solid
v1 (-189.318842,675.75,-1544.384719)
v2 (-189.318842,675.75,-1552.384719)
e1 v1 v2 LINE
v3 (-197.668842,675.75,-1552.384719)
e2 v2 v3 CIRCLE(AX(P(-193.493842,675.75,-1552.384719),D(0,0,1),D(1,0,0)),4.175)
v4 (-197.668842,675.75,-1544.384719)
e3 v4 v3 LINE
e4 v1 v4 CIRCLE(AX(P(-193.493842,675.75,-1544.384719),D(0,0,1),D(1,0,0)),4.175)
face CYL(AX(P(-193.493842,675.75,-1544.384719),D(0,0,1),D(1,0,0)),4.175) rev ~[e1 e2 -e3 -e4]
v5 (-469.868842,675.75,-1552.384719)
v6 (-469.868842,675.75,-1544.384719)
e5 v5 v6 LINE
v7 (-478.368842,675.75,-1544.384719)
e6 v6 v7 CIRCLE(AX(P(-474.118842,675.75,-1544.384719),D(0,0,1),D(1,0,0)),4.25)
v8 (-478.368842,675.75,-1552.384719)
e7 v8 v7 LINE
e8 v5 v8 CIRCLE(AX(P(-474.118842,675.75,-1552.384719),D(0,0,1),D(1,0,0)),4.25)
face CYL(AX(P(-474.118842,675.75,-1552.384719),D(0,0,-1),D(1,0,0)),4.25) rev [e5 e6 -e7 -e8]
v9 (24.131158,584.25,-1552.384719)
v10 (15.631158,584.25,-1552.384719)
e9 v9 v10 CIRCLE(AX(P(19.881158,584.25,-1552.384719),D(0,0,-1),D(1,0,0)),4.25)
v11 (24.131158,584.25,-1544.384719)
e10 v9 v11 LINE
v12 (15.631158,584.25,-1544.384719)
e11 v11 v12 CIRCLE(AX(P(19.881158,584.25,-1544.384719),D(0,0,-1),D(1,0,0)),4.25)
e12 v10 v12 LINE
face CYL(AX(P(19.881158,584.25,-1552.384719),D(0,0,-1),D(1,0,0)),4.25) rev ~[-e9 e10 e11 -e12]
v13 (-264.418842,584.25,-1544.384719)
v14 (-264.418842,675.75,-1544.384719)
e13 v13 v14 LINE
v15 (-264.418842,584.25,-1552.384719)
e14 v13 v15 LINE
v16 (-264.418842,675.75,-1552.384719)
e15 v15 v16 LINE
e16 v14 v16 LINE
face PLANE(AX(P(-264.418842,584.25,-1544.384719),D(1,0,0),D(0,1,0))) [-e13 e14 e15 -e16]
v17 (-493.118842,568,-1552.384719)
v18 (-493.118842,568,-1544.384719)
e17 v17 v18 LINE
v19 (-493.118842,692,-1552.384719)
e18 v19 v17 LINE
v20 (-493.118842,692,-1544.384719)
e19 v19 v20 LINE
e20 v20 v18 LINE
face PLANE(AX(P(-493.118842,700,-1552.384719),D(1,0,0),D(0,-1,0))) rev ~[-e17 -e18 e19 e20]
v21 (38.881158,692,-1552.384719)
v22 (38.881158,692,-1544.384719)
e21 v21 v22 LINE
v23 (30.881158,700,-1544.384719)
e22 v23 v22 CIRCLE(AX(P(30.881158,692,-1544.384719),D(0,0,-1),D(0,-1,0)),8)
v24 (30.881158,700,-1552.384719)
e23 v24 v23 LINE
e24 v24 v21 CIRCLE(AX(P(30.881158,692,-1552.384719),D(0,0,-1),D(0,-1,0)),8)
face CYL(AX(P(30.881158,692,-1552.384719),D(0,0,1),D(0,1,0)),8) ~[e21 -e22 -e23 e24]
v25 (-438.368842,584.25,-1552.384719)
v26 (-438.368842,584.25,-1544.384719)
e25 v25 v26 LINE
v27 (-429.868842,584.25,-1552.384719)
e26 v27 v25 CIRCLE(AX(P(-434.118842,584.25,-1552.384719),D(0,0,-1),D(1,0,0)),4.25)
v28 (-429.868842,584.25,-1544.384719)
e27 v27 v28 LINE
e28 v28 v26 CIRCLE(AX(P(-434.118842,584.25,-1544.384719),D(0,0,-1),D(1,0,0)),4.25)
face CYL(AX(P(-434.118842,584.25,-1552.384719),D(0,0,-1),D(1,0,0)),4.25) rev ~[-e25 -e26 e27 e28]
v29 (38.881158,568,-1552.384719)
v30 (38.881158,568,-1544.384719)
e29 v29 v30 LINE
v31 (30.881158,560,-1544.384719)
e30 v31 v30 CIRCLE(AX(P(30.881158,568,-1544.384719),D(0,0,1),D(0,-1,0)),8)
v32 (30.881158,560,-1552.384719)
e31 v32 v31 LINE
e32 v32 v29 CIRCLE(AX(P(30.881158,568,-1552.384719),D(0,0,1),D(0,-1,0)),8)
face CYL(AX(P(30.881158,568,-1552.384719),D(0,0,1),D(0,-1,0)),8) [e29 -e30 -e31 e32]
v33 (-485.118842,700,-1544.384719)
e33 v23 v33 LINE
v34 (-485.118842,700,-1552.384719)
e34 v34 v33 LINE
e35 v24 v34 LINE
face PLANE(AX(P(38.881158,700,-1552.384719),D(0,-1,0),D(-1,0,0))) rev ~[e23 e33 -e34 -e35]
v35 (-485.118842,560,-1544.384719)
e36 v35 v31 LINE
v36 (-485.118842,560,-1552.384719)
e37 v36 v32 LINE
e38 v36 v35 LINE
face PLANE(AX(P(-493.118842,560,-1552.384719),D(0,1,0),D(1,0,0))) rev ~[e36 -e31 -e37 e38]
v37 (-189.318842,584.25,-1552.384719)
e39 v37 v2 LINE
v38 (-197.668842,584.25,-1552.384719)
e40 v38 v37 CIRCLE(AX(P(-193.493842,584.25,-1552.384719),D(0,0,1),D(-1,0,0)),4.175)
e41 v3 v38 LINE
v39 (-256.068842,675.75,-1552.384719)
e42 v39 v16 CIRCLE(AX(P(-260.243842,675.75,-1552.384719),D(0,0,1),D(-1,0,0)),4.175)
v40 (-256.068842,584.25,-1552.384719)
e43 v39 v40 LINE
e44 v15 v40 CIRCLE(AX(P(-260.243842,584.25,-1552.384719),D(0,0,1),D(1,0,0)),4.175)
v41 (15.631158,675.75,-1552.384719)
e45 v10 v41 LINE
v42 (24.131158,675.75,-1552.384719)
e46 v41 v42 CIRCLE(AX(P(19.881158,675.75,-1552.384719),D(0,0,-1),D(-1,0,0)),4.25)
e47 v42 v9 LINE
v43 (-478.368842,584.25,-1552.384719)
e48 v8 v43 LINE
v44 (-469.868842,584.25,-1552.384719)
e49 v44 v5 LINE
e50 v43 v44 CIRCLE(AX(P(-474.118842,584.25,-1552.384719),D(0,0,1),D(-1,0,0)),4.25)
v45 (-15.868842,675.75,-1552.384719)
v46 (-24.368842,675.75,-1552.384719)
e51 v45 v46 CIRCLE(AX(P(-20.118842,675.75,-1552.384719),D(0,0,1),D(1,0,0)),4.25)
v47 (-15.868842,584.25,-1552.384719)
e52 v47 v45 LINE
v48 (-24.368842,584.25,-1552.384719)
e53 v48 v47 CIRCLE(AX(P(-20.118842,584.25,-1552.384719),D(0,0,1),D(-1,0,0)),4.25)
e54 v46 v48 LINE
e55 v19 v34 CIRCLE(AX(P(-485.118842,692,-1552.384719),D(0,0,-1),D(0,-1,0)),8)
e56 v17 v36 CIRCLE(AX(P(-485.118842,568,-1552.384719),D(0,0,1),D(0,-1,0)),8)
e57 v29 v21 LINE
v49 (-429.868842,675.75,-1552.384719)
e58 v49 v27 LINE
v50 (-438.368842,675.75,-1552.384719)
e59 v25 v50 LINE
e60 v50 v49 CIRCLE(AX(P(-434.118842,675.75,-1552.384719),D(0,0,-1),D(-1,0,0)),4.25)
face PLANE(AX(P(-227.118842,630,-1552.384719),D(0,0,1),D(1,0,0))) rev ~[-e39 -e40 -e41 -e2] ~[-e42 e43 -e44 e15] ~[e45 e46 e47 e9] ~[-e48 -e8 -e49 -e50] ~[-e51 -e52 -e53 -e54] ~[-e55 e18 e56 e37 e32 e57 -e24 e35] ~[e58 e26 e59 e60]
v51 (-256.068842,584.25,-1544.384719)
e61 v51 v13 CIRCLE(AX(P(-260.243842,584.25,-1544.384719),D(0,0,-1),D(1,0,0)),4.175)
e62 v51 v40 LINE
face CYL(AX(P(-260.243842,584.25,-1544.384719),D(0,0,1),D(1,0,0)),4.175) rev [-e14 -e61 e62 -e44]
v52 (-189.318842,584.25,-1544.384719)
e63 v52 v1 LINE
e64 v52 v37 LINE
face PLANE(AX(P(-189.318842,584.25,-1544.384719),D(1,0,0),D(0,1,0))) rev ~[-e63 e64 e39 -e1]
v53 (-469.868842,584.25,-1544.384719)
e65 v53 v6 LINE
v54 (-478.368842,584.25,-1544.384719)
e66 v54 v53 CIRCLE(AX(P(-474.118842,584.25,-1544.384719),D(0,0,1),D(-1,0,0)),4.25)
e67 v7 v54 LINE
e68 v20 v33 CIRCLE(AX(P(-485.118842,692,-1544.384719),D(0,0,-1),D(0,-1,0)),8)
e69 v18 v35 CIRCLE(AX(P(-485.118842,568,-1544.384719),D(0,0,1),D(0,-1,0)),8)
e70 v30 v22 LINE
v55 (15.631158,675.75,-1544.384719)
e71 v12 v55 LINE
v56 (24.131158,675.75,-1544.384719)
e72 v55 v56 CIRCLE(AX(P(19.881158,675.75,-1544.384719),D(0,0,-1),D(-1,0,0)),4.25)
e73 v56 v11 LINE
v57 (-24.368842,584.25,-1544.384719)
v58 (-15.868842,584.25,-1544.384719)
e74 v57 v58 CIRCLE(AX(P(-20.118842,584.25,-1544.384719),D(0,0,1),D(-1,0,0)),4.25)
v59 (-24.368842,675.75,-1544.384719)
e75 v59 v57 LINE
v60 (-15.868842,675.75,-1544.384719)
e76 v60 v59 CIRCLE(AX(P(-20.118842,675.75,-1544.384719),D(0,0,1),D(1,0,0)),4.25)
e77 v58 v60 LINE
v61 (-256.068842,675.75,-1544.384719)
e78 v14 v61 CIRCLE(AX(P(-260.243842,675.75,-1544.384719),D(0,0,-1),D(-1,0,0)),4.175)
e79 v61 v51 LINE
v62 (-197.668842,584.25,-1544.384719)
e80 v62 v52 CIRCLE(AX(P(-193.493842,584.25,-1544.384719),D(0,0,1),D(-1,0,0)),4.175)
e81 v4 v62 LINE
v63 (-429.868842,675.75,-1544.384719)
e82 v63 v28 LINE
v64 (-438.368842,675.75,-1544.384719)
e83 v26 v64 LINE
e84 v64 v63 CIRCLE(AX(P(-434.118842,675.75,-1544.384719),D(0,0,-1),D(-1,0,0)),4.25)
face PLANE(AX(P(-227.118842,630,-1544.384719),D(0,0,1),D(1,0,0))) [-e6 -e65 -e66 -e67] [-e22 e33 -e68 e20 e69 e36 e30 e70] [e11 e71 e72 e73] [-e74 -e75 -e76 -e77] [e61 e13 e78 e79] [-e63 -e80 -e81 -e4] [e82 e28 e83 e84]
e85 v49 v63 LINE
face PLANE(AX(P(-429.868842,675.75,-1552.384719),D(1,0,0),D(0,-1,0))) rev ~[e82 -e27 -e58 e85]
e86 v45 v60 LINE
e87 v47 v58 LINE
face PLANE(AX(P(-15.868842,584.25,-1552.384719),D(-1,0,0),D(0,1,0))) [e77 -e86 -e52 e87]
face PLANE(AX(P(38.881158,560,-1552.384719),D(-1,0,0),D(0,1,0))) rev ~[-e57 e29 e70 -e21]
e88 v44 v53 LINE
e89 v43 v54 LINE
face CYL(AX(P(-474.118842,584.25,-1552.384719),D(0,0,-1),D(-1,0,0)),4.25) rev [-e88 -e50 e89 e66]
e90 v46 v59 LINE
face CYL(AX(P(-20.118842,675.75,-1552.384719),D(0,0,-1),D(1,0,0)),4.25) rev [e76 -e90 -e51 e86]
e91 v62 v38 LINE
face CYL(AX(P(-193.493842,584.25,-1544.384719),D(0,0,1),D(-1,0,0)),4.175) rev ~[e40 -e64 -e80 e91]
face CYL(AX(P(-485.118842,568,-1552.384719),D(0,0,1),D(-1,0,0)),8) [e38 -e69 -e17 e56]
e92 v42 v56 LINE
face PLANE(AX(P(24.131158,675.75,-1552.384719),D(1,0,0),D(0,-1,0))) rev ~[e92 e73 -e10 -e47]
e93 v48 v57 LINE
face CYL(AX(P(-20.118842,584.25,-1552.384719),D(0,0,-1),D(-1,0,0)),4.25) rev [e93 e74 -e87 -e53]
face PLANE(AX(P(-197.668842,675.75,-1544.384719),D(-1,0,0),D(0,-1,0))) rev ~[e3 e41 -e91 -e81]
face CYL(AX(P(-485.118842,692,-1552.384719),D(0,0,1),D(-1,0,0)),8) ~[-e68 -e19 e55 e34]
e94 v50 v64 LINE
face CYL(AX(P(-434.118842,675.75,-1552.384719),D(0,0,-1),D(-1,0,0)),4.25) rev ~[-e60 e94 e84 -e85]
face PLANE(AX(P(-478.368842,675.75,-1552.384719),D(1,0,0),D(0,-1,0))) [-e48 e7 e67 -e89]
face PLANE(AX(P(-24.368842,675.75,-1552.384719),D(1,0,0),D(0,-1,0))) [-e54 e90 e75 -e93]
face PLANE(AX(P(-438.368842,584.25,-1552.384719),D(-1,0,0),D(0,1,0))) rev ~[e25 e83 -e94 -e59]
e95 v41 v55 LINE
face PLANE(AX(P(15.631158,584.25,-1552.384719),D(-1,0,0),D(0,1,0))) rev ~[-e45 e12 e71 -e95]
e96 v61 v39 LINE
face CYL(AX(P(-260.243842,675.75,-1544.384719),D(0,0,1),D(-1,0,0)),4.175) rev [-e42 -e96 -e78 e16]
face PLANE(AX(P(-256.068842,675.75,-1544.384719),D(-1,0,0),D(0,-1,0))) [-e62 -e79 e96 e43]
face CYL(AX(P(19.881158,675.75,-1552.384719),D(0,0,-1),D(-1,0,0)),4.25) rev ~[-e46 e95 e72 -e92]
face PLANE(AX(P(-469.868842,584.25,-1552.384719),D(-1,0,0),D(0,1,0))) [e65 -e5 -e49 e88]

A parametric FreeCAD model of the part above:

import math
import FreeCAD as App
import Part
import Sketcher

V = App.Vector


def edges_at(feature, points):
    """Names of the edges that pass closest to the given points."""
    edges = feature.Shape.Edges
    near = lambda p: min(range(len(edges)), key=lambda i: edges[i].distToShape(Part.Vertex(*p))[0])
    return sorted({f"Edge{near(p) + 1}" for p in points})

doc = App.newDocument("Part")
body = doc.addObject("PartDesign::Body", "Body")

# Sketch on XY plane
sketch1 = body.newObject("Sketcher::SketchObject", "Sketch")
sketch1.AttachmentSupport = (doc.getObject("XY_Plane"), [""])
sketch1.MapMode = "FlatFace"
sketch1.AttachmentOffset = App.Placement(V(0, 0, -1552.384719), App.Rotation())
sketch1.addGeometry(Part.LineSegment(V(-493.118842, 700, 0), V(-493.118842, 560, 0)), False)
sketch1.addGeometry(Part.LineSegment(V(-493.118842, 560, 0), V(38.881158, 560, 0)), False)
sketch1.addGeometry(Part.LineSegment(V(38.881158, 560, 0), V(38.881158, 700, 0)), False)
sketch1.addGeometry(Part.LineSegment(V(38.881158, 700, 0), V(-493.118842, 700, 0)), False)
sketch1.addGeometry(Part.LineSegment(V(-469.868842, 675.75, 0), V(-469.868842, 584.25, 0)), False)
sketch1.addGeometry(Part.ArcOfCircle(Part.Circle(V(-474.118842, 584.25, 0), V(0, 0, 1), 4.25), math.radians(180), math.radians(360)), False)
sketch1.addGeometry(Part.LineSegment(V(-478.368842, 584.25, 0), V(-478.368842, 675.75, 0)), False)
sketch1.addGeometry(Part.ArcOfCircle(Part.Circle(V(-474.118842, 675.75, 0), V(0, 0, 1), 4.25), math.radians(0), math.radians(180)), False)
sketch1.addGeometry(Part.ArcOfCircle(Part.Circle(V(-434.118842, 584.25, 0), V(0, 0, 1), 4.25), math.radians(180), math.radians(360)), False)
sketch1.addGeometry(Part.LineSegment(V(-438.368842, 584.25, 0), V(-438.368842, 675.75, 0)), False)
sketch1.addGeometry(Part.ArcOfCircle(Part.Circle(V(-434.118842, 675.75, 0), V(0, 0, 1), 4.25), math.radians(0), math.radians(180)), False)
sketch1.addGeometry(Part.LineSegment(V(-429.868842, 675.75, 0), V(-429.868842, 584.25, 0)), False)
sketch1.addGeometry(Part.LineSegment(V(-15.868842, 675.75, 0), V(-15.868842, 584.25, 0)), False)
sketch1.addGeometry(Part.ArcOfCircle(Part.Circle(V(-20.118842, 584.25, 0), V(0, 0, 1), 4.25), math.radians(180), math.radians(360)), False)
sketch1.addGeometry(Part.LineSegment(V(-24.368842, 584.25, 0), V(-24.368842, 675.75, 0)), False)
sketch1.addGeometry(Part.ArcOfCircle(Part.Circle(V(-20.118842, 675.75, 0), V(0, 0, 1), 4.25), math.radians(0), math.radians(180)), False)
sketch1.addGeometry(Part.ArcOfCircle(Part.Circle(V(19.881158, 584.25, 0), V(0, 0, 1), 4.25), math.radians(180), math.radians(360)), False)
sketch1.addGeometry(Part.LineSegment(V(15.631158, 584.25, 0), V(15.631158, 675.75, 0)), False)
sketch1.addGeometry(Part.ArcOfCircle(Part.Circle(V(19.881158, 675.75, 0), V(0, 0, 1), 4.25), math.radians(0), math.radians(180)), False)
sketch1.addGeometry(Part.LineSegment(V(24.131158, 675.75, 0), V(24.131158, 584.25, 0)), False)
sketch1.addConstraint(Sketcher.Constraint("Coincident", 0, 2, 1, 1))
sketch1.addConstraint(Sketcher.Constraint("Coincident", 1, 2, 2, 1))
sketch1.addConstraint(Sketcher.Constraint("Coincident", 2, 2, 3, 1))
sketch1.addConstraint(Sketcher.Constraint("Coincident", 3, 2, 0, 1))
sketch1.addConstraint(Sketcher.Constraint("Tangent", 4, 2, 5, 2))
sketch1.addConstraint(Sketcher.Constraint("Tangent", 5, 1, 6, 1))
sketch1.addConstraint(Sketcher.Constraint("Tangent", 6, 2, 7, 2))
sketch1.addConstraint(Sketcher.Constraint("Tangent", 7, 1, 4, 1))
sketch1.addConstraint(Sketcher.Constraint("Tangent", 8, 1, 9, 1))
sketch1.addConstraint(Sketcher.Constraint("Tangent", 9, 2, 10, 2))
sketch1.addConstraint(Sketcher.Constraint("Tangent", 10, 1, 11, 1))
sketch1.addConstraint(Sketcher.Constraint("Tangent", 11, 2, 8, 2))
sketch1.addConstraint(Sketcher.Constraint("Tangent", 12, 2, 13, 2))
sketch1.addConstraint(Sketcher.Constraint("Tangent", 13, 1, 14, 1))
sketch1.addConstraint(Sketcher.Constraint("Tangent", 14, 2, 15, 2))
sketch1.addConstraint(Sketcher.Constraint("Tangent", 15, 1, 12, 1))
sketch1.addConstraint(Sketcher.Constraint("Tangent", 16, 1, 17, 1))
sketch1.addConstraint(Sketcher.Constraint("Tangent", 17, 2, 18, 2))
sketch1.addConstraint(Sketcher.Constraint("Tangent", 18, 1, 19, 1))
sketch1.addConstraint(Sketcher.Constraint("Tangent", 19, 2, 16, 2))
sketch1.addConstraint(Sketcher.Constraint("Vertical", 0))
sketch1.addConstraint(Sketcher.Constraint("Horizontal", 1))
sketch1.addConstraint(Sketcher.Constraint("Vertical", 2))
sketch1.addConstraint(Sketcher.Constraint("Horizontal", 3))
sketch1.addConstraint(Sketcher.Constraint("Vertical", 4))
sketch1.addConstraint(Sketcher.Constraint("Vertical", 6))
sketch1.addConstraint(Sketcher.Constraint("Vertical", 9))
sketch1.addConstraint(Sketcher.Constraint("Vertical", 11))
sketch1.addConstraint(Sketcher.Constraint("Vertical", 12))
sketch1.addConstraint(Sketcher.Constraint("Vertical", 14))
sketch1.addConstraint(Sketcher.Constraint("Vertical", 17))
sketch1.addConstraint(Sketcher.Constraint("Vertical", 19))
sketch1.addConstraint(Sketcher.Constraint("Equal", 7, 8))
sketch1.addConstraint(Sketcher.Constraint("Equal", 10, 13))
sketch1.addConstraint(Sketcher.Constraint("Equal", 15, 16))
sketch1.addConstraint(Sketcher.Constraint("Horizontal", 5, 3, 8, 3))
sketch1.addConstraint(Sketcher.Constraint("Horizontal", 7, 3, 10, 3))
sketch1.addConstraint(Sketcher.Constraint("Horizontal", 8, 3, 13, 3))
sketch1.addConstraint(Sketcher.Constraint("Horizontal", 10, 3, 15, 3))
sketch1.addConstraint(Sketcher.Constraint("Horizontal", 13, 3, 16, 3))
sketch1.addConstraint(Sketcher.Constraint("Horizontal", 15, 3, 18, 3))
sketch1.addConstraint(Sketcher.Constraint("DistanceX", 1, 1, 1, 2, 532.0))
sketch1.addConstraint(Sketcher.Constraint("DistanceY", 0, 2, 0, 1, 140.0))
sketch1.addConstraint(Sketcher.Constraint("Radius", 5, 4.25))
sketch1.addConstraint(Sketcher.Constraint("DistanceY", 4, 2, 4, 1, 91.5))
sketch1.addConstraint(Sketcher.Constraint("DistanceY", -1, 1, 0, 2, 560.0))
sketch1.addConstraint(Sketcher.Constraint("DistanceX", 5, 3, 8, 3, 40.0))
sketch1.addConstraint(Sketcher.Constraint("DistanceX", 8, 3, 13, 3, 414.0))
sketch1.addConstraint(Sketcher.Constraint("DistanceX", 13, 3, 16, 3, 40.0))
sketch1.addConstraint(Sketcher.Constraint("DistanceX", 0, 2, 5, 3, 19.0))
sketch1.addConstraint(Sketcher.Constraint("DistanceY", -1, 1, 5, 3, 584.25))
sketch1.addConstraint(Sketcher.Constraint("DistanceX", 5, 3, -1, 1, 474.118842))
pad1 = body.newObject("PartDesign::Pad", "Pad")
pad1.Profile = sketch1
pad1.Length = 8
doc.recompute()

fillet = body.newObject("PartDesign::Fillet", "Fillet")
fillet.Base = (pad1, edges_at(pad1, [
    (-493.119, 560, -1548.385),
    (-493.119, 700, -1548.385),
    (38.881, 700, -1548.385),
    (38.881, 560, -1548.385),
]))
fillet.Radius = 8

# Sketch on XY plane
sketch2 = body.newObject("Sketcher::SketchObject", "Sketch001")
sketch2.AttachmentSupport = (doc.getObject("XY_Plane"), [""])
sketch2.MapMode = "FlatFace"
sketch2.AttachmentOffset = App.Placement(V(0, 0, -1544.384719), App.Rotation())
sketch2.addGeometry(Part.LineSegment(V(-256.068842, 584.25, 0), V(-256.068842, 675.75, 0)), False)
sketch2.addGeometry(Part.ArcOfCircle(Part.Circle(V(-260.243842, 675.75, 0), V(0, 0, 1), 4.175), math.radians(0), math.radians(180)), False)
sketch2.addGeometry(Part.LineSegment(V(-264.418842, 675.75, 0), V(-264.418842, 584.25, 0)), False)
sketch2.addGeometry(Part.ArcOfCircle(Part.Circle(V(-260.243842, 584.25, 0), V(0, 0, 1), 4.175), math.radians(180), math.radians(360)), False)
sketch2.addGeometry(Part.LineSegment(V(-197.668842, 675.75, 0), V(-197.668842, 584.25, 0)), False)
sketch2.addGeometry(Part.ArcOfCircle(Part.Circle(V(-193.493842, 584.25, 0), V(0, 0, 1), 4.175), math.radians(180), math.radians(360)), False)
sketch2.addGeometry(Part.LineSegment(V(-189.318842, 584.25, 0), V(-189.318842, 675.75, 0)), False)
sketch2.addGeometry(Part.ArcOfCircle(Part.Circle(V(-193.493842, 675.75, 0), V(0, 0, 1), 4.175), math.radians(0), math.radians(180)), False)
sketch2.addConstraint(Sketcher.Constraint("Tangent", 0, 2, 1, 1))
sketch2.addConstraint(Sketcher.Constraint("Tangent", 1, 2, 2, 1))
sketch2.addConstraint(Sketcher.Constraint("Tangent", 2, 2, 3, 1))
sketch2.addConstraint(Sketcher.Constraint("Tangent", 3, 2, 0, 1))
sketch2.addConstraint(Sketcher.Constraint("Tangent", 4, 2, 5, 1))
sketch2.addConstraint(Sketcher.Constraint("Tangent", 5, 2, 6, 1))
sketch2.addConstraint(Sketcher.Constraint("Tangent", 6, 2, 7, 1))
sketch2.addConstraint(Sketcher.Constraint("Tangent", 7, 2, 4, 1))
sketch2.addConstraint(Sketcher.Constraint("Vertical", 0))
sketch2.addConstraint(Sketcher.Constraint("Vertical", 2))
sketch2.addConstraint(Sketcher.Constraint("Vertical", 4))
sketch2.addConstraint(Sketcher.Constraint("Vertical", 6))
sketch2.addConstraint(Sketcher.Constraint("Equal", 3, 5))
sketch2.addConstraint(Sketcher.Constraint("Horizontal", 3, 3, 5, 3))
sketch2.addConstraint(Sketcher.Constraint("Horizontal", 1, 3, 7, 3))
sketch2.addConstraint(Sketcher.Constraint("DistanceY", 0, 1, 0, 2, 91.5))
sketch2.addConstraint(Sketcher.Constraint("Radius", 1, 4.175))
sketch2.addConstraint(Sketcher.Constraint("DistanceX", 3, 2, 4, 2, 58.4))
sketch2.addConstraint(Sketcher.Constraint("DistanceY", -1, 1, 1, 3, 675.75))
sketch2.addConstraint(Sketcher.Constraint("DistanceX", 1, 3, -1, 1, 260.243842))
pocket1 = body.newObject("PartDesign::Pocket", "Pocket")
pocket1.Profile = sketch2
pocket1.Length = 10

doc.recompute()
